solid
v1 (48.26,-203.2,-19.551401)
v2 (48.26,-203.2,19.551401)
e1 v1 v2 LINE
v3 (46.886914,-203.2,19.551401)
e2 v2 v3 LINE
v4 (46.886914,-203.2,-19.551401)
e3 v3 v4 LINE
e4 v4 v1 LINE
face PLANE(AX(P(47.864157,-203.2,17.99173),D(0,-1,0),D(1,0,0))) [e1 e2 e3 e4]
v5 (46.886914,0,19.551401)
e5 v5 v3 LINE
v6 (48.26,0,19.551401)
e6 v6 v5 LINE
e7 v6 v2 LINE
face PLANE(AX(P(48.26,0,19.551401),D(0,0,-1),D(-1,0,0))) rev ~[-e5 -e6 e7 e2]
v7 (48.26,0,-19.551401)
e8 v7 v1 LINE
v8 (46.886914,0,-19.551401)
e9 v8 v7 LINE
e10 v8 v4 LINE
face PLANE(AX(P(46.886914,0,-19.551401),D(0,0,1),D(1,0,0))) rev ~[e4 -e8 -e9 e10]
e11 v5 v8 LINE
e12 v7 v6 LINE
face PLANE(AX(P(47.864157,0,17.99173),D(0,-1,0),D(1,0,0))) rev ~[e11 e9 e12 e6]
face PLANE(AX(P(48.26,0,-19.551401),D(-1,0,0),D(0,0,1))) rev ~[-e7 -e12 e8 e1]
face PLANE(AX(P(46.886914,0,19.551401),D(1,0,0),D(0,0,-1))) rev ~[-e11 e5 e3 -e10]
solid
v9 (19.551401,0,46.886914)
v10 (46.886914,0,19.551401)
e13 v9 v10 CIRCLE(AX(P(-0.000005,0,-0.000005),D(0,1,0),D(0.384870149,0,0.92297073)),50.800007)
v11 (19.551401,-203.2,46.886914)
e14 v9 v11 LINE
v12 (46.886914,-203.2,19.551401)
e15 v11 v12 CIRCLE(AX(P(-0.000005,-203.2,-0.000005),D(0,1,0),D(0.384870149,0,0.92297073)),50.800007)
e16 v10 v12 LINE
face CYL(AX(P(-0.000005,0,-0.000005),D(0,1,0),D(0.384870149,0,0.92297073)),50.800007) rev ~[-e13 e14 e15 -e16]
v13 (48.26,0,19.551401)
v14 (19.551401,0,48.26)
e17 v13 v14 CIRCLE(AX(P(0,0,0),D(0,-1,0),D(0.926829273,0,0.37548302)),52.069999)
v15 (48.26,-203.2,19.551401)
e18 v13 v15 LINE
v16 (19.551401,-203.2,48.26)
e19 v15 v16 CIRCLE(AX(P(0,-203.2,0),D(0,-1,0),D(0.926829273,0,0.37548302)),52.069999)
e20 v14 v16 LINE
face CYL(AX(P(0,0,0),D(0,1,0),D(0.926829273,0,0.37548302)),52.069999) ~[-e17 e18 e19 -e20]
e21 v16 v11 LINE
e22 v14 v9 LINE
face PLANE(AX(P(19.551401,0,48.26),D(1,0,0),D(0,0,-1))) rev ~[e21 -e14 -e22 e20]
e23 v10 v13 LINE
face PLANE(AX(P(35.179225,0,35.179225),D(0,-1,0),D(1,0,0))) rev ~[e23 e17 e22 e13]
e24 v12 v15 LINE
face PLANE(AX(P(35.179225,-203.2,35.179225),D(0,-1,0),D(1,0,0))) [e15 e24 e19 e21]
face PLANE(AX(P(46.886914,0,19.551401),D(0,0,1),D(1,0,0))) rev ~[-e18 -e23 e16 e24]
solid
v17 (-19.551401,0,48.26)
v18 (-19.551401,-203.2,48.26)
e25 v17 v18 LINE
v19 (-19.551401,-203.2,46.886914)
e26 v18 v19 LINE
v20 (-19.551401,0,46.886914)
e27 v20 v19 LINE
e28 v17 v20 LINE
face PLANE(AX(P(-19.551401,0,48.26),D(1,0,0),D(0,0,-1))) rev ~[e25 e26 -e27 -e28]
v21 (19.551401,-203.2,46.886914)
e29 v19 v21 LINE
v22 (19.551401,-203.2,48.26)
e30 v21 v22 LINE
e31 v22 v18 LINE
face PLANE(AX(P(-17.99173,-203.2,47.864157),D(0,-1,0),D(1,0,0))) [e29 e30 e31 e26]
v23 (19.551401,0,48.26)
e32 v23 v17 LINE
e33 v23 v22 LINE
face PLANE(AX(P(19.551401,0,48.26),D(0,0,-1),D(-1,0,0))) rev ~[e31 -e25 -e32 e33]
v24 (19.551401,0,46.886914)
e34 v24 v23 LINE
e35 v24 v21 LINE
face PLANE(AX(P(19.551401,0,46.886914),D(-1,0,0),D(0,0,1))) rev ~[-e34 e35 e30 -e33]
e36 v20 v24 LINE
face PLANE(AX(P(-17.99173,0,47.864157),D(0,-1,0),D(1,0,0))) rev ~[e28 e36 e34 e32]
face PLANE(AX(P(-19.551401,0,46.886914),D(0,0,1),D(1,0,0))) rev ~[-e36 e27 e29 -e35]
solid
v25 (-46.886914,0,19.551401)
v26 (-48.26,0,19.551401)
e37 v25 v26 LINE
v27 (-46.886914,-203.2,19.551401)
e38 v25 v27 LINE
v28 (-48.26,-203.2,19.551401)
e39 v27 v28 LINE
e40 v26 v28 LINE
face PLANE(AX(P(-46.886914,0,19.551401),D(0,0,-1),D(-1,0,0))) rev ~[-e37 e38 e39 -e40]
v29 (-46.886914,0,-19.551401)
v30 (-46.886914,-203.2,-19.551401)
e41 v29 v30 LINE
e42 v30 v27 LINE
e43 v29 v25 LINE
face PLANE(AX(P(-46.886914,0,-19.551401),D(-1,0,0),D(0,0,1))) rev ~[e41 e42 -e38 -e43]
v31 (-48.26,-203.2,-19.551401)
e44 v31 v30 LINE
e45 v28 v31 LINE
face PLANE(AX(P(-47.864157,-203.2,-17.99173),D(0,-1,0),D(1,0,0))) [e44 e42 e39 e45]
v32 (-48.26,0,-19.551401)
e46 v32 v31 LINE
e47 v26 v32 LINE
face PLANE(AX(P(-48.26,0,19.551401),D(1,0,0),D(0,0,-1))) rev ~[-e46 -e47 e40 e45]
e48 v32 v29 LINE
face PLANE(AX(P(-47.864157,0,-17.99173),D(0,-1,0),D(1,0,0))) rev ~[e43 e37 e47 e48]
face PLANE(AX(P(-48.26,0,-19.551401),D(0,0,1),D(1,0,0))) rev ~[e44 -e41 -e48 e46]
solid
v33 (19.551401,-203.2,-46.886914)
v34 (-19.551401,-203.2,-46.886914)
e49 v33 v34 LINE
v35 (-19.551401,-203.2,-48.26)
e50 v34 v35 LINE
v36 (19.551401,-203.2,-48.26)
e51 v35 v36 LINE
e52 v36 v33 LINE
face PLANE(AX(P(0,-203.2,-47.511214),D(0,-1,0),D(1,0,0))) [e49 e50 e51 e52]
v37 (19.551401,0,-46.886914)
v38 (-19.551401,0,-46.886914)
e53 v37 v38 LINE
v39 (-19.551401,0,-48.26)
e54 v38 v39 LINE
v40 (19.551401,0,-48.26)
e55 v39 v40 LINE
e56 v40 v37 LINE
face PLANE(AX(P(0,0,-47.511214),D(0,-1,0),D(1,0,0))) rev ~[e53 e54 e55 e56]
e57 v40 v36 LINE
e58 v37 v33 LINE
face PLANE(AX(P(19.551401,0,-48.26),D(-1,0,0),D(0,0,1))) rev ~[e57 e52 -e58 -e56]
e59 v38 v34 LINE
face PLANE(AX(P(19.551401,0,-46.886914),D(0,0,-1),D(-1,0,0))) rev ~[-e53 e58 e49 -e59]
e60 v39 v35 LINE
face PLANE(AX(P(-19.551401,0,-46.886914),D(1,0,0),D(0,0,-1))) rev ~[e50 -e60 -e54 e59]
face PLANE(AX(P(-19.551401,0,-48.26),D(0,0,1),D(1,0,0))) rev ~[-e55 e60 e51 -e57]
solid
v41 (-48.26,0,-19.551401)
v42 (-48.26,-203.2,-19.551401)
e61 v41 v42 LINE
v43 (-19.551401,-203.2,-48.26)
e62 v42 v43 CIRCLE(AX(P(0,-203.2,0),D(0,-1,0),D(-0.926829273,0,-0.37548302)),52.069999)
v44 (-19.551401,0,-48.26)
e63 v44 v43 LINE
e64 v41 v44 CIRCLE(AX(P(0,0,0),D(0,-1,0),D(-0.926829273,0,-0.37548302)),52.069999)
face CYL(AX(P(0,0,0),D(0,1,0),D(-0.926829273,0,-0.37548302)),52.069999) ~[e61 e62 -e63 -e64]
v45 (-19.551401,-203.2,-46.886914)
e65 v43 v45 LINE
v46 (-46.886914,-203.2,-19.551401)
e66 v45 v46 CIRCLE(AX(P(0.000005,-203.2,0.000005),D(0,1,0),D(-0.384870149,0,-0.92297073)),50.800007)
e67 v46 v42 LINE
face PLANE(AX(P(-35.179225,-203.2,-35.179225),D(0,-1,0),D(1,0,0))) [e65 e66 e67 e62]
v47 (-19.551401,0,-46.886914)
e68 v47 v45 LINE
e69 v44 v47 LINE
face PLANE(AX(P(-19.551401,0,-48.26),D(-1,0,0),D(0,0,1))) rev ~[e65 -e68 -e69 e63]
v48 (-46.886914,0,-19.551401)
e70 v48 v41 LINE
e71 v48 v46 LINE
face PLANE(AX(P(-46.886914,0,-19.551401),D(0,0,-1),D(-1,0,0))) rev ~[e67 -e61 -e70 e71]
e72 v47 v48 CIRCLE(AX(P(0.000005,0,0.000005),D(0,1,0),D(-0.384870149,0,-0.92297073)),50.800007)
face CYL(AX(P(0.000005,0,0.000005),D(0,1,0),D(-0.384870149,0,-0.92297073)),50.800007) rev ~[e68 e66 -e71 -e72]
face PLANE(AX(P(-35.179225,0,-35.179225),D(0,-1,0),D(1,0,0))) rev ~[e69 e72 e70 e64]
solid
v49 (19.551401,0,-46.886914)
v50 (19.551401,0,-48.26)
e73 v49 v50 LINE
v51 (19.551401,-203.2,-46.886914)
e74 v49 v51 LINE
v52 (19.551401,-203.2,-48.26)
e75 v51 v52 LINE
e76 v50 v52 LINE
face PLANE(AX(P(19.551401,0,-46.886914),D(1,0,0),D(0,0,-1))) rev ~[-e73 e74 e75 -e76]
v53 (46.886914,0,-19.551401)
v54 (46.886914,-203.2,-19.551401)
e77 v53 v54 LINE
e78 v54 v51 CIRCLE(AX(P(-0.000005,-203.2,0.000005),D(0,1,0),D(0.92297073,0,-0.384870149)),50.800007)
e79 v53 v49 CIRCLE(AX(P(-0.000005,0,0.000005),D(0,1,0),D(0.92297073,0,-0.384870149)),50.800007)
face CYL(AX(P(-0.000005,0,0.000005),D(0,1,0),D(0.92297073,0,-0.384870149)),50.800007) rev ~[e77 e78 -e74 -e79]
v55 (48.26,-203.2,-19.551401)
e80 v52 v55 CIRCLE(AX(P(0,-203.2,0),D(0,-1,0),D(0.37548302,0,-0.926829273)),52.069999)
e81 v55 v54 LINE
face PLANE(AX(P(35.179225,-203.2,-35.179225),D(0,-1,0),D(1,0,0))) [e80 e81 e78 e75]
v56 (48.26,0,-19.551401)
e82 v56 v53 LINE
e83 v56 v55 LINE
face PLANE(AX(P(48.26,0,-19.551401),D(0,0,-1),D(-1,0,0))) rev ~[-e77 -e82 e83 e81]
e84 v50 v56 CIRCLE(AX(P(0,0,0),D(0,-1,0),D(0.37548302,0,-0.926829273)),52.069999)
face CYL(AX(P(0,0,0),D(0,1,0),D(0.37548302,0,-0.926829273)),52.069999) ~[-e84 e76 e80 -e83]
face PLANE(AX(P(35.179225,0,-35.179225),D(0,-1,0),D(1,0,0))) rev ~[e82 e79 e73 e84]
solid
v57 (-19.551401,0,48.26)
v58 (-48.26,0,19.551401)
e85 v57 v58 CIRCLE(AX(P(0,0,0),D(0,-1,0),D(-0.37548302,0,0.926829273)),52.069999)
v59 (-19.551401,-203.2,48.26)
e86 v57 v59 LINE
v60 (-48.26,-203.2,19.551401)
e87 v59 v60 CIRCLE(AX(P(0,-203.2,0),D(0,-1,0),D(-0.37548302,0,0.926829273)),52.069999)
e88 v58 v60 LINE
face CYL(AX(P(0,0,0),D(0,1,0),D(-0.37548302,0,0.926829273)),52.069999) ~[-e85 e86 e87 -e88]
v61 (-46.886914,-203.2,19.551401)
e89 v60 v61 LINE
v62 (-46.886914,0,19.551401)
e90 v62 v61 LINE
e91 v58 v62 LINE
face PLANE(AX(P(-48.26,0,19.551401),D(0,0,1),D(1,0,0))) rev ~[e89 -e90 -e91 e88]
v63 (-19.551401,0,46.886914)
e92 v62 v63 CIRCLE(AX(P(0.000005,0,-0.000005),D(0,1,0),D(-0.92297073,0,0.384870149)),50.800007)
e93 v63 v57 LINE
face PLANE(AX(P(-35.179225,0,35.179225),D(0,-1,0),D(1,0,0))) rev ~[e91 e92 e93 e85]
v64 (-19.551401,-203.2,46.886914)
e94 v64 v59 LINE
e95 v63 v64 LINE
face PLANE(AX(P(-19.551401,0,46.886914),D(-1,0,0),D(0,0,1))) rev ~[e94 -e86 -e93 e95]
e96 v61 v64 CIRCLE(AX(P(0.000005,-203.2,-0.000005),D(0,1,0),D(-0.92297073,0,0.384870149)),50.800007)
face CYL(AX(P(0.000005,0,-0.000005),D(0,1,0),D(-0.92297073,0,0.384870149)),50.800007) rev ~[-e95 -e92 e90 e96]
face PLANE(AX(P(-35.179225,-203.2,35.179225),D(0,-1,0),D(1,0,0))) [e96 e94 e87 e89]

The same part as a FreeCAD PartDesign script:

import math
import FreeCAD as App
import Part
import Sketcher
Q = App.Units.Quantity

doc = App.newDocument("Part")
body = doc.addObject("PartDesign::Body", "Body")
body.AllowCompound = True

# Sketch on XZ plane
sketch1 = doc.addObject("Sketcher::SketchObject", "Sketch")
body.addObject(sketch1)
sketch1.AttachmentSupport = (doc.XZ_Plane, [""])
sketch1.MapMode = "FlatFace"
sketch1.addGeometry([
    Part.ArcOfCircle(Part.Circle(App.Vector(0, 0, 0), App.Vector(0, 0, 1), 50.8), math.radians(113), math.radians(157)),  # 0
    Part.LineSegment(App.Vector(-19.6, 46.9, 0), App.Vector(-19.6, 48.3, 0)),  # 1
    Part.ArcOfCircle(Part.Circle(App.Vector(0, 0, 0), App.Vector(0, 0, 1), 52.1), math.radians(112), math.radians(158)),  # 2
    Part.LineSegment(App.Vector(-48.3, 19.6, 0), App.Vector(-46.9, 19.6, 0)),  # 3
    Part.ArcOfCircle(Part.Circle(App.Vector(0, 0, 0), App.Vector(0, 0, 1), 50.8), math.radians(23), math.radians(67)),  # 4
    Part.LineSegment(App.Vector(46.9, 19.6, 0), App.Vector(48.3, 19.6, 0)),  # 5
    Part.ArcOfCircle(Part.Circle(App.Vector(0, 0, 0), App.Vector(0, 0, 1), 52.1), math.radians(22), math.radians(68)),  # 6
    Part.LineSegment(App.Vector(19.6, 48.3, 0), App.Vector(19.6, 46.9, 0)),  # 7
    Part.LineSegment(App.Vector(48.3, -19.6, 0), App.Vector(46.9, -19.6, 0)),  # 8
    Part.ArcOfCircle(Part.Circle(App.Vector(0, 0, 0), App.Vector(0, 0, 1), 50.8), math.radians(-67), math.radians(-23)),  # 9
    Part.LineSegment(App.Vector(19.6, -46.9, 0), App.Vector(19.6, -48.3, 0)),  # 10
    Part.ArcOfCircle(Part.Circle(App.Vector(0, 0, 0), App.Vector(0, 0, 1), 52.1), math.radians(-68), math.radians(-22)),  # 11
    Part.LineSegment(App.Vector(-19.6, -48.3, 0), App.Vector(-19.6, -46.9, 0)),  # 12
    Part.ArcOfCircle(Part.Circle(App.Vector(0, 0, 0), App.Vector(0, 0, 1), 50.8), math.radians(-157), math.radians(-113)),  # 13
    Part.LineSegment(App.Vector(-46.9, -19.6, 0), App.Vector(-48.3, -19.6, 0)),  # 14
    Part.ArcOfCircle(Part.Circle(App.Vector(0, 0, 0), App.Vector(0, 0, 1), 52.1), math.radians(-158), math.radians(-112)),  # 15
], False)
sketch1.addConstraint([
    Sketcher.Constraint("Coincident", 0, 1, 1, 1),
    Sketcher.Constraint("Coincident", 1, 2, 2, 1),
    Sketcher.Constraint("Coincident", 2, 2, 3, 1),
    Sketcher.Constraint("Coincident", 3, 2, 0, 2),
    Sketcher.Constraint("Coincident", 4, 1, 5, 1),
    Sketcher.Constraint("Coincident", 5, 2, 6, 1),
    Sketcher.Constraint("Coincident", 6, 2, 7, 1),
    Sketcher.Constraint("Coincident", 7, 2, 4, 2),
    Sketcher.Constraint("Coincident", 8, 2, 9, 2),
    Sketcher.Constraint("Coincident", 9, 1, 10, 1),
    Sketcher.Constraint("Coincident", 10, 2, 11, 1),
    Sketcher.Constraint("Coincident", 11, 2, 8, 1),
    Sketcher.Constraint("Coincident", 12, 2, 13, 2),
    Sketcher.Constraint("Coincident", 13, 1, 14, 1),
    Sketcher.Constraint("Coincident", 14, 2, 15, 1),
    Sketcher.Constraint("Coincident", 15, 2, 12, 1),
    Sketcher.Constraint("Vertical", 1),
    Sketcher.Constraint("Horizontal", 3),
    Sketcher.Constraint("Horizontal", 5),
    Sketcher.Constraint("Vertical", 7),
    Sketcher.Constraint("Horizontal", 8),
    Sketcher.Constraint("Vertical", 10),
    Sketcher.Constraint("Vertical", 12),
    Sketcher.Constraint("Horizontal", 14),
    Sketcher.Constraint("Coincident", 0, 3, -1, 1),
    Sketcher.Constraint("Coincident", 2, 3, -1, 1),
    Sketcher.Constraint("Coincident", 4, 3, -1, 1),
    Sketcher.Constraint("Coincident", 6, 3, -1, 1),
    Sketcher.Constraint("Coincident", 9, 3, -1, 1),
    Sketcher.Constraint("Coincident", 11, 3, -1, 1),
    Sketcher.Constraint("Coincident", 13, 3, -1, 1),
    Sketcher.Constraint("Coincident", 15, 3, -1, 1),
    Sketcher.Constraint("Equal", 0, 4),
    Sketcher.Constraint("Equal", 2, 6),
    Sketcher.Constraint("Equal", 4, 9),
    Sketcher.Constraint("Equal", 6, 11),
    Sketcher.Constraint("Equal", 9, 13),
    Sketcher.Constraint("Equal", 11, 15),
    Sketcher.Constraint("Horizontal", 3, 2, 4, 1),
    Sketcher.Constraint("Horizontal", 1, 2, 6, 2),
    Sketcher.Constraint("Horizontal", 9, 1, 12, 2),
    Sketcher.Constraint("Horizontal", 11, 2, 13, 1),
    Sketcher.Constraint("Vertical", 4, 1, 8, 2),
    Sketcher.Constraint("Vertical", 7, 2, 9, 1),
    Sketcher.Constraint("Equal", 14, 1),
    Sketcher.Constraint("Radius", 2, Q("2.05 in")),
    Sketcher.Constraint("DistanceY", -1, 1, 1, 2, Q("1.9 in")),
    Sketcher.Constraint("Radius", 0, 50.800007),
])
pad1 = doc.addObject("PartDesign::Pad", "Pad")
body.addObject(pad1)
pad1.Profile = sketch1
pad1.Length = Q("8 in")
body2 = doc.addObject("PartDesign::Body", "Body001")
body2.AllowCompound = True

# Sketch on XZ plane
sketch2 = doc.addObject("Sketcher::SketchObject", "Sketch001")
body2.addObject(sketch2)
sketch2.AttachmentSupport = (doc.getObject("XZ_Plane001"), [""])
sketch2.MapMode = "FlatFace"
sketch2.addGeometry([
    Part.LineSegment(App.Vector(-48.3, -19.6, 0), App.Vector(-46.9, -19.6, 0)),  # 0
    Part.LineSegment(App.Vector(-46.9, -19.6, 0), App.Vector(-46.9, 19.6, 0)),  # 1
    Part.LineSegment(App.Vector(-46.9, 19.6, 0), App.Vector(-48.3, 19.6, 0)),  # 2
    Part.LineSegment(App.Vector(-48.3, 19.6, 0), App.Vector(-48.3, -19.6, 0)),  # 3
    Part.LineSegment(App.Vector(-19.6, 48.3, 0), App.Vector(-19.6, 46.9, 0)),  # 4
    Part.LineSegment(App.Vector(-19.6, 46.9, 0), App.Vector(19.6, 46.9, 0)),  # 5
    Part.LineSegment(App.Vector(19.6, 46.9, 0), App.Vector(19.6, 48.3, 0)),  # 6
    Part.LineSegment(App.Vector(19.6, 48.3, 0), App.Vector(-19.6, 48.3, 0)),  # 7
    Part.LineSegment(App.Vector(48.3, 19.6, 0), App.Vector(46.9, 19.6, 0)),  # 8
    Part.LineSegment(App.Vector(46.9, 19.6, 0), App.Vector(46.9, -19.6, 0)),  # 9
    Part.LineSegment(App.Vector(46.9, -19.6, 0), App.Vector(48.3, -19.6, 0)),  # 10
    Part.LineSegment(App.Vector(48.3, -19.6, 0), App.Vector(48.3, 19.6, 0)),  # 11
    Part.LineSegment(App.Vector(19.6, -46.9, 0), App.Vector(-19.6, -46.9, 0)),  # 12
    Part.LineSegment(App.Vector(-19.6, -46.9, 0), App.Vector(-19.6, -48.3, 0)),  # 13
    Part.LineSegment(App.Vector(-19.6, -48.3, 0), App.Vector(19.6, -48.3, 0)),  # 14
    Part.LineSegment(App.Vector(19.6, -48.3, 0), App.Vector(19.6, -46.9, 0)),  # 15
], False)
sketch2.addConstraint([
    Sketcher.Constraint("Coincident", 0, 2, 1, 1),
    Sketcher.Constraint("Coincident", 1, 2, 2, 1),
    Sketcher.Constraint("Coincident", 2, 2, 3, 1),
    Sketcher.Constraint("Coincident", 3, 2, 0, 1),
    Sketcher.Constraint("Coincident", 4, 2, 5, 1),
    Sketcher.Constraint("Coincident", 5, 2, 6, 1),
    Sketcher.Constraint("Coincident", 6, 2, 7, 1),
    Sketcher.Constraint("Coincident", 7, 2, 4, 1),
    Sketcher.Constraint("Coincident", 8, 2, 9, 1),
    Sketcher.Constraint("Coincident", 9, 2, 10, 1),
    Sketcher.Constraint("Coincident", 10, 2, 11, 1),
    Sketcher.Constraint("Coincident", 11, 2, 8, 1),
    Sketcher.Constraint("Coincident", 12, 2, 13, 1),
    Sketcher.Constraint("Coincident", 13, 2, 14, 1),
    Sketcher.Constraint("Coincident", 14, 2, 15, 1),
    Sketcher.Constraint("Coincident", 15, 2, 12, 1),
    Sketcher.Constraint("Horizontal", 0),
    Sketcher.Constraint("Vertical", 1),
    Sketcher.Constraint("Horizontal", 2),
    Sketcher.Constraint("Vertical", 3),
    Sketcher.Constraint("Vertical", 4),
    Sketcher.Constraint("Horizontal", 5),
    Sketcher.Constraint("Vertical", 6),
    Sketcher.Constraint("Horizontal", 7),
    Sketcher.Constraint("Horizontal", 8),
    Sketcher.Constraint("Vertical", 9),
    Sketcher.Constraint("Horizontal", 10),
    Sketcher.Constraint("Vertical", 11),
    Sketcher.Constraint("Horizontal", 12),
    Sketcher.Constraint("Vertical", 13),
    Sketcher.Constraint("Horizontal", 14),
    Sketcher.Constraint("Vertical", 15),
    Sketcher.Constraint("Symmetric", 0, 2, 8, 2, -1, 1),
    Sketcher.Constraint("Symmetric", 2, 2, 10, 2, -1, 1),
    Sketcher.Constraint("Symmetric", 5, 2, 12, 2, -1, 1),
    Sketcher.Constraint("Symmetric", 7, 2, 14, 2, -1, 1),
    Sketcher.Constraint("Horizontal", 2, 2, 8, 2),
    Sketcher.Constraint("Vertical", 7, 2, 12, 2),
    Sketcher.Constraint("Equal", 14, 1),
    Sketcher.Constraint("Equal", 10, 4),
    Sketcher.Constraint("DistanceX", 2, 2, -1, 1, Q("1.9 in")),
    Sketcher.Constraint("DistanceY", -1, 1, 6, 2, Q("1.9 in")),
    Sketcher.Constraint("DistanceX", 5, 1, 5, 2, 39.102802),
    Sketcher.Constraint("DistanceX", 0, 1, 0, 2, 1.373086),
])
pad2 = doc.addObject("PartDesign::Pad", "Pad001")
body2.addObject(pad2)
pad2.Profile = sketch2
pad2.Length = Q("8 in")

doc.recompute()
